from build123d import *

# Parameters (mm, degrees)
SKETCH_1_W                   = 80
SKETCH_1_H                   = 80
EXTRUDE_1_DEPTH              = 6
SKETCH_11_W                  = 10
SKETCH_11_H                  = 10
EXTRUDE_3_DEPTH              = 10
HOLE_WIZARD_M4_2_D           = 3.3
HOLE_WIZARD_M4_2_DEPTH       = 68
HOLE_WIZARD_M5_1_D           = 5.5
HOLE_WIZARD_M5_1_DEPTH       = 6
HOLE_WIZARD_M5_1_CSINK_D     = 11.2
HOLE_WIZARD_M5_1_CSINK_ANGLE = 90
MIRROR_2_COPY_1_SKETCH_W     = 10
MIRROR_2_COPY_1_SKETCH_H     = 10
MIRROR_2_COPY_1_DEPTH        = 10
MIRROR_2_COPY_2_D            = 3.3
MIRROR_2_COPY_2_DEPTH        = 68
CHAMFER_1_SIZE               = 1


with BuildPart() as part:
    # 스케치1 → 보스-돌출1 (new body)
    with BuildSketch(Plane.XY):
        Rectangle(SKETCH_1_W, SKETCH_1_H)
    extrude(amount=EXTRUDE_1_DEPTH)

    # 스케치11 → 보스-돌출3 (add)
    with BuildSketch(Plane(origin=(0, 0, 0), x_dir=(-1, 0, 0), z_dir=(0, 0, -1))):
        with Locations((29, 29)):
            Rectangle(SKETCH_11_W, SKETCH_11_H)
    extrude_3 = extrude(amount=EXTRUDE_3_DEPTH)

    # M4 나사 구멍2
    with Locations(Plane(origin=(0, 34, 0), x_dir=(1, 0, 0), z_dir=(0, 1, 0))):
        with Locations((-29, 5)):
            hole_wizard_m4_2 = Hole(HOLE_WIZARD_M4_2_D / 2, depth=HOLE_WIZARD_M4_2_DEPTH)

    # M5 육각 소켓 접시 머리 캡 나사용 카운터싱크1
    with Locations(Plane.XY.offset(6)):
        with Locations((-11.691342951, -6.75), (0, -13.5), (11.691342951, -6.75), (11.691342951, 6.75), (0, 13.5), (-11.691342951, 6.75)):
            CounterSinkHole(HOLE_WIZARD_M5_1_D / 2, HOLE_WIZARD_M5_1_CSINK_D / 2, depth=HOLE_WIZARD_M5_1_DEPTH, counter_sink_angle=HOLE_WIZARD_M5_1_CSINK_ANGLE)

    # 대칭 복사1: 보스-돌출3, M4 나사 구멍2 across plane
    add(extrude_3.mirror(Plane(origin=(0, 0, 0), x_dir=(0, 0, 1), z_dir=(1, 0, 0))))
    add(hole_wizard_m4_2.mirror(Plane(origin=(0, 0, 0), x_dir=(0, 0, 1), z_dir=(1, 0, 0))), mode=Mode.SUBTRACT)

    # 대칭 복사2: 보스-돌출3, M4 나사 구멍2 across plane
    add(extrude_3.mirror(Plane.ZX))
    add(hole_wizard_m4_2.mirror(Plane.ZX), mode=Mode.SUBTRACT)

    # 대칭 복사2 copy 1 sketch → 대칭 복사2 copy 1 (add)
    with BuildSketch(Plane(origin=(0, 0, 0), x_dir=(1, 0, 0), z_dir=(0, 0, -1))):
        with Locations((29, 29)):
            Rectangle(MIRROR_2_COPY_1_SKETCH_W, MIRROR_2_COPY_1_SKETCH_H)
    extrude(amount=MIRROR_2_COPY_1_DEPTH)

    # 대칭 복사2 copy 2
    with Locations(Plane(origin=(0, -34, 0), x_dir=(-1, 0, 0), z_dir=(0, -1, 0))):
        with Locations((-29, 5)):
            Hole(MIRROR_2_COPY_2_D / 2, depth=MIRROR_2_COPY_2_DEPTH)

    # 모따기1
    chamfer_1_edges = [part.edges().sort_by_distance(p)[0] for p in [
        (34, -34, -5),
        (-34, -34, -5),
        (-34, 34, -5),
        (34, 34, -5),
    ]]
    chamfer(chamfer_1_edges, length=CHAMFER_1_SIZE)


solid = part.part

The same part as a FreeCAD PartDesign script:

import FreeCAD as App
import Part
import Sketcher
Q = App.Units.Quantity


def edges_at(feature, points):
    """Names of the edges that pass closest to the given points."""
    edges = feature.Shape.Edges
    near = lambda p: min(range(len(edges)), key=lambda i: edges[i].distToShape(Part.Vertex(*p))[0])
    return sorted({f"Edge{near(p) + 1}" for p in points})

doc = App.newDocument("Part")
params = doc.addObject("Spreadsheet::Sheet", "Params")
for row, (alias, value) in enumerate([
    ("sketch1_width", "80 mm"),
    ("pad1_length", "6 mm"),
    ("sketch2_width", "10 mm"),
    ("pad2_length", "10 mm"),
    ("sketch3_diameter", "3.3 mm"),
    ("hole_diameter", "3.3 mm"),
    ("hole_depth", "68 mm"),
    ("sketch4_diameter", "5.5 mm"),
    ("hole2_diameter", "5.5 mm"),
    ("hole2_depth", "6 mm"),
    ("hole2_csink_diameter", "11.2 mm"),
    ("sketch5_width", "10 mm"),
    ("pad3_length", "10 mm"),
    ("sketch6_diameter", "3.3 mm"),
    ("hole3_diameter", "3.3 mm"),
    ("hole3_depth", "68 mm"),
    ("chamfer_size", "1 mm"),
], start=1):
    params.set(f"A{row}", alias)
    params.set(f"B{row}", "=" + value)
    params.setAlias(f"B{row}", alias)

body = doc.addObject("PartDesign::Body", "Body")

# Sketch on XY plane
sketch1 = body.newObject("Sketcher::SketchObject", "Sketch")
sketch1.AttachmentSupport = (doc.getObject("XY_Plane"), [""])
sketch1.MapMode = "FlatFace"
sketch1.addGeometry([
    Part.LineSegment(App.Vector(-40, 40, 0), App.Vector(-40, -40, 0)),
    Part.LineSegment(App.Vector(-40, -40, 0), App.Vector(40, -40, 0)),
    Part.LineSegment(App.Vector(40, -40, 0), App.Vector(40, 40, 0)),
    Part.LineSegment(App.Vector(40, 40, 0), App.Vector(-40, 40, 0)),
], False)
sketch1.addConstraint([
    Sketcher.Constraint("Coincident", 0, 2, 1, 1),
    Sketcher.Constraint("Coincident", 1, 2, 2, 1),
    Sketcher.Constraint("Coincident", 2, 2, 3, 1),
    Sketcher.Constraint("Coincident", 3, 2, 0, 1),
    Sketcher.Constraint("Vertical", 0),
    Sketcher.Constraint("Horizontal", 1),
    Sketcher.Constraint("Vertical", 2),
    Sketcher.Constraint("Horizontal", 3),
    Sketcher.Constraint("Symmetric", 0, 2, 2, 2, -1, 1),
    Sketcher.Constraint("Equal", 3, 0),
    Sketcher.Constraint("DistanceX", 1, 1, 1, 2, Q("80 mm")),
])
sketch1.setExpression("Constraints[10]", "Params.sketch1_width")
pad1 = body.newObject("PartDesign::Pad", "Pad")
pad1.Profile = sketch1
pad1.setExpression("Length", "Params.pad1_length")

# Sketch on XY plane
sketch2 = body.newObject("Sketcher::SketchObject", "Sketch001")
sketch2.AttachmentSupport = (doc.getObject("XY_Plane"), [""])
sketch2.MapMode = "FlatFace"
sketch2.addGeometry([
    Part.LineSegment(App.Vector(-24, 34, 0), App.Vector(-24, 24, 0)),
    Part.LineSegment(App.Vector(-24, 24, 0), App.Vector(-34, 24, 0)),
    Part.LineSegment(App.Vector(-34, 24, 0), App.Vector(-34, 34, 0)),
    Part.LineSegment(App.Vector(-34, 34, 0), App.Vector(-24, 34, 0)),
], False)
sketch2.addConstraint([
    Sketcher.Constraint("Coincident", 0, 2, 1, 1),
    Sketcher.Constraint("Coincident", 1, 2, 2, 1),
    Sketcher.Constraint("Coincident", 2, 2, 3, 1),
    Sketcher.Constraint("Coincident", 3, 2, 0, 1),
    Sketcher.Constraint("Vertical", 0),
    Sketcher.Constraint("Horizontal", 1),
    Sketcher.Constraint("Vertical", 2),
    Sketcher.Constraint("Horizontal", 3),
    Sketcher.Constraint("Equal", 3, 0),
    Sketcher.Constraint("DistanceX", 1, 2, 1, 1, Q("10 mm")),
    Sketcher.Constraint("DistanceX", 0, 2, -1, 1, Q("24 mm")),
    Sketcher.Constraint("DistanceY", -1, 1, 0, 2, Q("24 mm")),
])
sketch2.setExpression("Constraints[9]", "Params.sketch2_width")
pad2 = body.newObject("PartDesign::Pad", "Pad001")
pad2.Profile = sketch2
pad2.setExpression("Length", "Params.pad2_length")
pad2.Reversed = True

# Sketch on XZ plane
sketch3 = body.newObject("Sketcher::SketchObject", "Sketch002")
sketch3.AttachmentSupport = (doc.getObject("XZ_Plane"), [""])
sketch3.MapMode = "FlatFace"
sketch3.AttachmentOffset = App.Placement(App.Vector(0, 0, -34), App.Rotation())
sketch3.addGeometry(Part.Circle(App.Vector(-29, -5, 0), App.Vector(0, 0, 1), 1.65), False)
sketch3.addConstraint([
    Sketcher.Constraint("Diameter", 0, Q("3.3 mm")),
    Sketcher.Constraint("DistanceX", 0, 3, -1, 1, Q("29 mm")),
    Sketcher.Constraint("DistanceY", 0, 3, -1, 1, Q("5 mm")),
])
sketch3.setExpression("Constraints[0]", "Params.sketch3_diameter")
doc.recompute()
hole = body.newObject("PartDesign::Hole", "Hole")
hole.Profile = sketch3
hole.ThreadType = "None"
hole.setExpression("Diameter", "Params.hole_diameter")
hole.DepthType = "Dimension"
hole.setExpression("Depth", "Params.hole_depth")
hole.DrillPoint = "Flat"
hole.Reversed = True

# Sketch on XY plane
sketch4 = body.newObject("Sketcher::SketchObject", "Sketch003")
sketch4.AttachmentSupport = (doc.getObject("XY_Plane"), [""])
sketch4.MapMode = "FlatFace"
sketch4.AttachmentOffset = App.Placement(App.Vector(0, 0, 6), App.Rotation())
sketch4.addGeometry([
    Part.Circle(App.Vector(-11.691343, -6.75, 0), App.Vector(0, 0, 1), 2.75),  # 0
    Part.Circle(App.Vector(0, -13.5, 0), App.Vector(0, 0, 1), 2.75),  # 1
    Part.Circle(App.Vector(11.691343, -6.75, 0), App.Vector(0, 0, 1), 2.75),  # 2
    Part.Circle(App.Vector(11.691343, 6.75, 0), App.Vector(0, 0, 1), 2.75),  # 3
    Part.Circle(App.Vector(0, 13.5, 0), App.Vector(0, 0, 1), 2.75),  # 4
    Part.Circle(App.Vector(-11.691343, 6.75, 0), App.Vector(0, 0, 1), 2.75),  # 5
], False)
sketch4.addConstraint([
    Sketcher.Constraint("Equal", 0, 1),
    Sketcher.Constraint("Equal", 1, 2),
    Sketcher.Constraint("Equal", 2, 3),
    Sketcher.Constraint("Equal", 3, 4),
    Sketcher.Constraint("Equal", 4, 5),
    Sketcher.Constraint("Symmetric", 0, 3, 3, 3, -1, 1),
    Sketcher.Constraint("Symmetric", 1, 3, 4, 3, -1, 1),
    Sketcher.Constraint("Symmetric", 2, 3, 5, 3, -1, 1),
    Sketcher.Constraint("Symmetric", 0, 3, 2, 3, -2),
    Sketcher.Constraint("PointOnObject", 1, 3, -2),
    Sketcher.Constraint("Diameter", 0, Q("5.5 mm")),
    Sketcher.Constraint("DistanceY", 1, 3, 4, 3, Q("27 mm")),
    Sketcher.Constraint("DistanceY", 2, 3, 3, 3, Q("13.5 mm")),
    Sketcher.Constraint("DistanceX", 0, 3, -1, 1, Q("11.691343 mm")),
])
sketch4.setExpression("Constraints[10]", "Params.sketch4_diameter")
doc.recompute()
hole2 = body.newObject("PartDesign::Hole", "Hole001")
hole2.Profile = sketch4
hole2.ThreadType = "None"
hole2.setExpression("Diameter", "Params.hole2_diameter")
hole2.DepthType = "Dimension"
hole2.setExpression("Depth", "Params.hole2_depth")
hole2.DrillPoint = "Flat"
hole2.HoleCutType = "Countersink"
hole2.setExpression("HoleCutDiameter", "Params.hole2_csink_diameter")
hole2.HoleCutCountersinkAngle = 90
doc.recompute()

mirrored = body.newObject("PartDesign::Mirrored", "Mirrored")
mirrored.Originals = [pad2, hole]
mirrored.MirrorPlane = (doc.getObject("YZ_Plane"), [""])
body.Tip = mirrored
doc.recompute()

mirrored2 = body.newObject("PartDesign::Mirrored", "Mirrored001")
mirrored2.Originals = [pad2, hole]
mirrored2.MirrorPlane = (doc.getObject("XZ_Plane"), [""])
body.Tip = mirrored2

# Sketch on XY plane
sketch5 = body.newObject("Sketcher::SketchObject", "Sketch004")
sketch5.AttachmentSupport = (doc.getObject("XY_Plane"), [""])
sketch5.MapMode = "FlatFace"
sketch5.addGeometry([
    Part.LineSegment(App.Vector(24, -34, 0), App.Vector(24, -24, 0)),
    Part.LineSegment(App.Vector(24, -24, 0), App.Vector(34, -24, 0)),
    Part.LineSegment(App.Vector(34, -24, 0), App.Vector(34, -34, 0)),
    Part.LineSegment(App.Vector(34, -34, 0), App.Vector(24, -34, 0)),
], False)
sketch5.addConstraint([
    Sketcher.Constraint("Coincident", 0, 2, 1, 1),
    Sketcher.Constraint("Coincident", 1, 2, 2, 1),
    Sketcher.Constraint("Coincident", 2, 2, 3, 1),
    Sketcher.Constraint("Coincident", 3, 2, 0, 1),
    Sketcher.Constraint("Vertical", 0),
    Sketcher.Constraint("Horizontal", 1),
    Sketcher.Constraint("Vertical", 2),
    Sketcher.Constraint("Horizontal", 3),
    Sketcher.Constraint("Equal", 3, 0),
    Sketcher.Constraint("DistanceX", 1, 1, 1, 2, Q("10 mm")),
    Sketcher.Constraint("DistanceX", -1, 1, 0, 2, Q("24 mm")),
    Sketcher.Constraint("DistanceY", 0, 2, -1, 1, Q("24 mm")),
])
sketch5.setExpression("Constraints[9]", "Params.sketch5_width")
pad3 = body.newObject("PartDesign::Pad", "Pad002")
pad3.Profile = sketch5
pad3.setExpression("Length", "Params.pad3_length")
pad3.Reversed = True

# Sketch on XZ plane
sketch6 = body.newObject("Sketcher::SketchObject", "Sketch005")
sketch6.AttachmentSupport = (doc.getObject("XZ_Plane"), [""])
sketch6.MapMode = "FlatFace"
sketch6.AttachmentOffset = App.Placement(App.Vector(0, 0, 34), App.Rotation())
sketch6.addGeometry(Part.Circle(App.Vector(29, -5, 0), App.Vector(0, 0, 1), 1.65), False)
sketch6.addConstraint([
    Sketcher.Constraint("Diameter", 0, Q("3.3 mm")),
    Sketcher.Constraint("DistanceX", -1, 1, 0, 3, Q("29 mm")),
    Sketcher.Constraint("DistanceY", 0, 3, -1, 1, Q("5 mm")),
])
sketch6.setExpression("Constraints[0]", "Params.sketch6_diameter")
doc.recompute()
hole3 = body.newObject("PartDesign::Hole", "Hole002")
hole3.Profile = sketch6
hole3.ThreadType = "None"
hole3.setExpression("Diameter", "Params.hole3_diameter")
hole3.DepthType = "Dimension"
hole3.setExpression("Depth", "Params.hole3_depth")
hole3.DrillPoint = "Flat"
doc.recompute()

chamfer = body.newObject("PartDesign::Chamfer", "Chamfer")
chamfer.Base = (hole3, edges_at(hole3, [
    (34, -34, -5),
    (-34, -34, -5),
    (-34, 34, -5),
    (34, 34, -5),
]))
chamfer.setExpression("Size", "Params.chamfer_size")

doc.recompute()
